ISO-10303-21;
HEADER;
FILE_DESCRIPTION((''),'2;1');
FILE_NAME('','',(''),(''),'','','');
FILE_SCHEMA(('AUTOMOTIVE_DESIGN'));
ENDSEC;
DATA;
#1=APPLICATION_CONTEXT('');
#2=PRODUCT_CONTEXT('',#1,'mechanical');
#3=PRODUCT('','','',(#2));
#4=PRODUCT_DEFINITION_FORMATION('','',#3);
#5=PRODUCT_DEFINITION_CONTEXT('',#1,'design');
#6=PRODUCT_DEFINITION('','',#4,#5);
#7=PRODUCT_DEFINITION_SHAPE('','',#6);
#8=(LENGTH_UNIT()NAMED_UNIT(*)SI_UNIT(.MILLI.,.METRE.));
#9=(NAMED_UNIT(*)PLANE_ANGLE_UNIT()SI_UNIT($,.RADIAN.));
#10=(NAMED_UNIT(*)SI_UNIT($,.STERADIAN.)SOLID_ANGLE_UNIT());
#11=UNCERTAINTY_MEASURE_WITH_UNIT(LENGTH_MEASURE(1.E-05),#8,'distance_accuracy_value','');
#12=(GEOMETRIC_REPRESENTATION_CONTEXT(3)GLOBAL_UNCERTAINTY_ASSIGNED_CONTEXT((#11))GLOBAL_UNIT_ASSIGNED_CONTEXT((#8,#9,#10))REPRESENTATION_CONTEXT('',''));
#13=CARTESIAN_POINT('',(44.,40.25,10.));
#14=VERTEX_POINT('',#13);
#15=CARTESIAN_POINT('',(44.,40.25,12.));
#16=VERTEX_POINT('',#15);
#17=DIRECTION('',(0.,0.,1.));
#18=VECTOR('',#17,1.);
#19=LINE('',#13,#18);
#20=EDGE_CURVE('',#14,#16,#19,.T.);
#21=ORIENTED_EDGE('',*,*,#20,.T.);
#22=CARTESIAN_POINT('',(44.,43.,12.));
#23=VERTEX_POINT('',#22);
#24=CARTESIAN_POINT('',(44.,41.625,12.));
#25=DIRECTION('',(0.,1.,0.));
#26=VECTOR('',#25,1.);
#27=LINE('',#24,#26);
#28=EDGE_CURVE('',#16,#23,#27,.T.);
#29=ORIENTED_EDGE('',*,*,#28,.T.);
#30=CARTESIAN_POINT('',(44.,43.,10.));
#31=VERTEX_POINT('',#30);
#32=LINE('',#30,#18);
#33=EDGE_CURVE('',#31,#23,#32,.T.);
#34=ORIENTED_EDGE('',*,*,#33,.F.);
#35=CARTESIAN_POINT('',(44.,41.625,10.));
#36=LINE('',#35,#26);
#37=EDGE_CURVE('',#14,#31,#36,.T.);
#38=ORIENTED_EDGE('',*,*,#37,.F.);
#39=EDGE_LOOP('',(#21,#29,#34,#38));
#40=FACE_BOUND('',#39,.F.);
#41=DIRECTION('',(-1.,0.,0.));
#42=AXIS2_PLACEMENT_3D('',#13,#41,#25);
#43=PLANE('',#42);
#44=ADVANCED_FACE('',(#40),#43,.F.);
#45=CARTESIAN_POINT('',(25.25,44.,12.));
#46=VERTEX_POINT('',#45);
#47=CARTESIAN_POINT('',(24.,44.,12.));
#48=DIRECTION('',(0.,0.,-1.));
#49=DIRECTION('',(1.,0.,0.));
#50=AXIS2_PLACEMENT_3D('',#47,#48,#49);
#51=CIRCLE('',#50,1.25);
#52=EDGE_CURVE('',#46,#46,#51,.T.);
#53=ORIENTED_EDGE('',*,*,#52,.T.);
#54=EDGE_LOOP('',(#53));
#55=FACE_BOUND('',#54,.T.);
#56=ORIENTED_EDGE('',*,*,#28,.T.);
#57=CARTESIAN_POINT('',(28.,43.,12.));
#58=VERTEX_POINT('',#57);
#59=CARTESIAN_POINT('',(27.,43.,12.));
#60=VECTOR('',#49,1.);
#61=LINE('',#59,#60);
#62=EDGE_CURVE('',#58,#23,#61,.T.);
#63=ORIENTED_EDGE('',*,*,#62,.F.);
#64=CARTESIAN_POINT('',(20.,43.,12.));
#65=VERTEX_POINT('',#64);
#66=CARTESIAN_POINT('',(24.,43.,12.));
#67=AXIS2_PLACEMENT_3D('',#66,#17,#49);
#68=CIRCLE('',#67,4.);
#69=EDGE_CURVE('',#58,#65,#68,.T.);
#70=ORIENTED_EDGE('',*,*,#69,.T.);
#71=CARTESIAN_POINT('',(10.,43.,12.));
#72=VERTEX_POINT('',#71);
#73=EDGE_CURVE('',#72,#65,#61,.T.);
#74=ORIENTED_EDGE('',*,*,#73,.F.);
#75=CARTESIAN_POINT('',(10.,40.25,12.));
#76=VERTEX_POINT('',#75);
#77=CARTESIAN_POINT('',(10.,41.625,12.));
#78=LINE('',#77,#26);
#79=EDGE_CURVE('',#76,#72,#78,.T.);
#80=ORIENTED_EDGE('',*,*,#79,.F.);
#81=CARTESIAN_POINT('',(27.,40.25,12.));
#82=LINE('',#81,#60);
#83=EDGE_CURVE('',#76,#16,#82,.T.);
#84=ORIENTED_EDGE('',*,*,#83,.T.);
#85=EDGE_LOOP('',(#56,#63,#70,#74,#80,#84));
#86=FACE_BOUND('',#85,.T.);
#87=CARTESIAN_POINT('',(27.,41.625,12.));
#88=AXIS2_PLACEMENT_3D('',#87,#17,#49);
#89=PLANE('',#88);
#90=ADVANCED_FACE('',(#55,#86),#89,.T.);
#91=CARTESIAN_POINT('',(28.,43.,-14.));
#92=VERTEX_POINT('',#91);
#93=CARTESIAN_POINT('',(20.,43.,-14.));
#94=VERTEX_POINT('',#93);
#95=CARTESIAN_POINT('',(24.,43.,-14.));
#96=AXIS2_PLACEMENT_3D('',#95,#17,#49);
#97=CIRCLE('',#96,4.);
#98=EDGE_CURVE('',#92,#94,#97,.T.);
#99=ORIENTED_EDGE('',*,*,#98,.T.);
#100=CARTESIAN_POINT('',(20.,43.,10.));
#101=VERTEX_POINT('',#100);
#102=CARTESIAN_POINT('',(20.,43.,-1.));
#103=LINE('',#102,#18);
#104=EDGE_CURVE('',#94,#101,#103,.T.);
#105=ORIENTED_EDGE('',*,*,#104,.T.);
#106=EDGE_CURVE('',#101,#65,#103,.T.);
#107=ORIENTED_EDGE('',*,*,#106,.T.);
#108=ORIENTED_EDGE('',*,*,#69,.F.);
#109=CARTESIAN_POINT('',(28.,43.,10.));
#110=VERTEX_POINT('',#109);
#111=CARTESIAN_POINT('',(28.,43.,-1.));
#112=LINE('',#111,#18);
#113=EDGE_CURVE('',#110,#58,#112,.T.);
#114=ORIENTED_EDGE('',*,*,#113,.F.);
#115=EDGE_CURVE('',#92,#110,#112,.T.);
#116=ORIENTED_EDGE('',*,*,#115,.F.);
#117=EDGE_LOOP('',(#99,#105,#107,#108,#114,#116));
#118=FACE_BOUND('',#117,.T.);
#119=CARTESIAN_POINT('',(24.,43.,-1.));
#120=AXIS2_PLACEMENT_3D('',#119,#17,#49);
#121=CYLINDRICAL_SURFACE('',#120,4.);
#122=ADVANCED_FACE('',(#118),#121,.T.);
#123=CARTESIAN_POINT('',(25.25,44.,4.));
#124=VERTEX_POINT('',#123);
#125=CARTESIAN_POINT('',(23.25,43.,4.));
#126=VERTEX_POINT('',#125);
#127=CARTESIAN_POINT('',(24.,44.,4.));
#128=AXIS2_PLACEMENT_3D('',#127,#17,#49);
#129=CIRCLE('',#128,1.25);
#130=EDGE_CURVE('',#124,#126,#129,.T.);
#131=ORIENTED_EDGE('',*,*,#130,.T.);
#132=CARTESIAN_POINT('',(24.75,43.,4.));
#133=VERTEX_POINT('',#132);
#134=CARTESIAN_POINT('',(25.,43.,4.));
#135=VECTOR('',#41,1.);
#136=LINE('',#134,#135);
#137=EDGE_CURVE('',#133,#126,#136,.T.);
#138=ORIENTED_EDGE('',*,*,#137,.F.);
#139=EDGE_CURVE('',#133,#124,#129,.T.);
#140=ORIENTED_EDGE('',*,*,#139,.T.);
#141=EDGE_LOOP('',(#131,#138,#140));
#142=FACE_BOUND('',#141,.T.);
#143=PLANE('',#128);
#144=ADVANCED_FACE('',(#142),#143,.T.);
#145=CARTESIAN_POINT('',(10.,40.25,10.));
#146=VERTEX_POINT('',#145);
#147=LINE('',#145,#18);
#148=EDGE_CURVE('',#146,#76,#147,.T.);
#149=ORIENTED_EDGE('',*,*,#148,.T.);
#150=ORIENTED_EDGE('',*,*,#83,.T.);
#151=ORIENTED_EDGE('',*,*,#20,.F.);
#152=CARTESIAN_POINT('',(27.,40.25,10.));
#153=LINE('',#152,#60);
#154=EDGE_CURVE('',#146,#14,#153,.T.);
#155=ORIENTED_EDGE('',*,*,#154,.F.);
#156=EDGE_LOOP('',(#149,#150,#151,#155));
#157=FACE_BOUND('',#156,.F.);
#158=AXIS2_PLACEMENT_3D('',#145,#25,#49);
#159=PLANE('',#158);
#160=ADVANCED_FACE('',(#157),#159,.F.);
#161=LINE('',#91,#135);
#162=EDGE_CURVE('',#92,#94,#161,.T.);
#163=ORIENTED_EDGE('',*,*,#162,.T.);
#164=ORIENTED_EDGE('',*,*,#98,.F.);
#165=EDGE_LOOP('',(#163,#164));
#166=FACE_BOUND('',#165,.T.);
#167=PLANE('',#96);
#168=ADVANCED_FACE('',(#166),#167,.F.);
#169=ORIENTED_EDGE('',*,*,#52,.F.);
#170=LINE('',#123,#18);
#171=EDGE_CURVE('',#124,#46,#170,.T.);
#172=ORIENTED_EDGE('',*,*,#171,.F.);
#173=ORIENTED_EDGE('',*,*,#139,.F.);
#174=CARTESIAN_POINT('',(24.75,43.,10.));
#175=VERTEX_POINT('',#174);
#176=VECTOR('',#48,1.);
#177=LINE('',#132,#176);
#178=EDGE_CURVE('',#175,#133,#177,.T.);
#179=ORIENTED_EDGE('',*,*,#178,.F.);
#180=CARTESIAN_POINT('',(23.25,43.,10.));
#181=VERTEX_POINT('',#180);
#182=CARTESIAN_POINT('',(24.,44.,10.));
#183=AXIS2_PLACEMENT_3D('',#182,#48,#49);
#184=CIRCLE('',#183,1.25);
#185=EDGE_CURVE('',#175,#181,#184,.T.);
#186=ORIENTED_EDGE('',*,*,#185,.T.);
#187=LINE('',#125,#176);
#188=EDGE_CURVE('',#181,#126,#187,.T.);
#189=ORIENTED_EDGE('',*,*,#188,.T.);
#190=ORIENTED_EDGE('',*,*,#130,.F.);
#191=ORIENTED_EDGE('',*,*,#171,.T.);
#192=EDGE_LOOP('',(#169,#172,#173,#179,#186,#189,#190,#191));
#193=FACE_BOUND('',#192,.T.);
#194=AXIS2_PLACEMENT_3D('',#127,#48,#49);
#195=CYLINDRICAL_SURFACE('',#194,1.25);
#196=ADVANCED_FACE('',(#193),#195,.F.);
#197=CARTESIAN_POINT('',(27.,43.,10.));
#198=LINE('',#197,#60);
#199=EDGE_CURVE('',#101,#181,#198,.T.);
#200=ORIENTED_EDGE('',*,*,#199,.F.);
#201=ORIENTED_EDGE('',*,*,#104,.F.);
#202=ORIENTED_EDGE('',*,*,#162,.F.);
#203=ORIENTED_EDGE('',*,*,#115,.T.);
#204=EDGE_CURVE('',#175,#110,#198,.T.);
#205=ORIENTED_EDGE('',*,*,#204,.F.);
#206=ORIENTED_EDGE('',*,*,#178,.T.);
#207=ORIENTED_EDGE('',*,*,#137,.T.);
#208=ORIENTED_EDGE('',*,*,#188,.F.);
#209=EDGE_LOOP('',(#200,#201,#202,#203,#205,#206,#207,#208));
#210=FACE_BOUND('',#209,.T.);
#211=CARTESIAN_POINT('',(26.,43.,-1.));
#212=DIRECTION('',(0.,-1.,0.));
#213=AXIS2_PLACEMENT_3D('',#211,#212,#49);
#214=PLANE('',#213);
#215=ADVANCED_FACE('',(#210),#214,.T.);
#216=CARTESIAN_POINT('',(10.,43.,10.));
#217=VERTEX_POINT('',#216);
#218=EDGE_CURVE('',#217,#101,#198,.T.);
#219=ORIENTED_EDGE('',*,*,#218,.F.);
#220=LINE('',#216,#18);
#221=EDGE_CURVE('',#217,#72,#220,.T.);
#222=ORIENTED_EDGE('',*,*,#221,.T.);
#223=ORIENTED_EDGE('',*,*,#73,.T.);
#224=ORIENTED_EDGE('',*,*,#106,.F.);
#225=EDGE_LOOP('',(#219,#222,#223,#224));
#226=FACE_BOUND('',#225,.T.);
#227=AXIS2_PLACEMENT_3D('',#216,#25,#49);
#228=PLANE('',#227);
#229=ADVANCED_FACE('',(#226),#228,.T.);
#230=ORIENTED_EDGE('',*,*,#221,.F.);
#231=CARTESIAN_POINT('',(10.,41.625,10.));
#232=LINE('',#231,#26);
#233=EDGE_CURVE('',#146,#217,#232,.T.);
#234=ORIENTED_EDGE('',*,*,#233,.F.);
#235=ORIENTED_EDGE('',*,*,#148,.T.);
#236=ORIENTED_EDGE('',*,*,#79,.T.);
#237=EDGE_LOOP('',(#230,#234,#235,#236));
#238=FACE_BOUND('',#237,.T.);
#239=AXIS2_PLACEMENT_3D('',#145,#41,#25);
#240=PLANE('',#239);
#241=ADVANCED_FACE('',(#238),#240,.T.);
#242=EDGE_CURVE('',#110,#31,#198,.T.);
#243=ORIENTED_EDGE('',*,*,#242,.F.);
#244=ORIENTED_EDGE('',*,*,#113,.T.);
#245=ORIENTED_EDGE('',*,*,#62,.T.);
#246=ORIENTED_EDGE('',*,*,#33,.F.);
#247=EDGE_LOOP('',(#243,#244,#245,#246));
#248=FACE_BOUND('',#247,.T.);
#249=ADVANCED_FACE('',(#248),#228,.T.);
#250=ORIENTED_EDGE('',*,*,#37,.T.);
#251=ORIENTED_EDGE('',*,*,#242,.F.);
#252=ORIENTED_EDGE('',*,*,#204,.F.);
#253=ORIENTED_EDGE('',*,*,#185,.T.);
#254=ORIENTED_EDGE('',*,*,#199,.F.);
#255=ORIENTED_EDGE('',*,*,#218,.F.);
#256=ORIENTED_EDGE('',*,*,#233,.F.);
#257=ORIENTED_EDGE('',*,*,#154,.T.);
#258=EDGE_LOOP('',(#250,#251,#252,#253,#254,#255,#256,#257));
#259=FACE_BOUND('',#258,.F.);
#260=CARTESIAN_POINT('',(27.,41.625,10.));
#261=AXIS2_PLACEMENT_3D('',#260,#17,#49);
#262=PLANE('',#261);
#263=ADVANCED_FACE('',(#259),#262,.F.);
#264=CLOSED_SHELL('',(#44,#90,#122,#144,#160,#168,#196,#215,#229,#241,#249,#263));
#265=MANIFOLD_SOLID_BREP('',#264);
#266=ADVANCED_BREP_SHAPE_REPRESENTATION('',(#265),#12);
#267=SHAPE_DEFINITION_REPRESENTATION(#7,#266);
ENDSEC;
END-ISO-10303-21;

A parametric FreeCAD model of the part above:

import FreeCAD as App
import Part
import Sketcher

V = App.Vector
Q = App.Units.Quantity

doc = App.newDocument("Part")
body = doc.addObject("PartDesign::Body", "Body")

# Sketch on XY plane
sketch1 = body.newObject("Sketcher::SketchObject", "Sketch")
sketch1.AttachmentSupport = (doc.getObject("XY_Plane"), [""])
sketch1.MapMode = "FlatFace"
sketch1.AttachmentOffset = App.Placement(V(0, 0, 4), App.Rotation())
sketch1.addGeometry(Part.Circle(V(11, 29, 0), V(0, 0, 1), 1.2), False)
sketch1.addConstraint([
    Sketcher.Constraint("Diameter", 0, Q("2.5 mm")),
    Sketcher.Constraint("DistanceX", -1, 1, 0, 3, Q("11 mm")),
    Sketcher.Constraint("DistanceY", -1, 1, 0, 3, Q("29 mm")),
])
pad1 = body.newObject("PartDesign::Pad", "Pad")
pad1.Profile = sketch1
pad1.Length = 10
body2 = doc.addObject("PartDesign::Body", "Body001")

# Sketch on XY plane
sketch2 = body2.newObject("Sketcher::SketchObject", "Sketch001")
sketch2.AttachmentSupport = (doc.getObject("XY_Plane001"), [""])
sketch2.MapMode = "FlatFace"
sketch2.AttachmentOffset = App.Placement(V(0, 0, 10), App.Rotation())
sketch2.addGeometry([
    Part.LineSegment(V(-3, 28, 0), V(-3, 25.2, 0)),
    Part.LineSegment(V(-3, 25.2, 0), V(31, 25.2, 0)),
    Part.LineSegment(V(31, 25.2, 0), V(31, 28, 0)),
    Part.LineSegment(V(31, 28, 0), V(-3, 28, 0)),
], False)
sketch2.addConstraint([
    Sketcher.Constraint("Coincident", 0, 2, 1, 1),
    Sketcher.Constraint("Coincident", 1, 2, 2, 1),
    Sketcher.Constraint("Coincident", 2, 2, 3, 1),
    Sketcher.Constraint("Coincident", 3, 2, 0, 1),
    Sketcher.Constraint("Vertical", 0),
    Sketcher.Constraint("Horizontal", 1),
    Sketcher.Constraint("Vertical", 2),
    Sketcher.Constraint("Horizontal", 3),
    Sketcher.Constraint("DistanceX", 1, 1, 1, 2, Q("34 mm")),
    Sketcher.Constraint("DistanceX", 0, 2, -1, 1, Q("3 mm")),
    Sketcher.Constraint("DistanceY", -1, 1, 2, 2, Q("28 mm")),
    Sketcher.Constraint("DistanceY", 0, 2, 0, 1, Q("2.75 mm")),
])
pad2 = body2.newObject("PartDesign::Pad", "Pad001")
pad2.Profile = sketch2
pad2.Length = 2
body3 = doc.addObject("PartDesign::Body", "Body002")

# Sketch on XZ plane
sketch3 = body3.newObject("Sketcher::SketchObject", "Sketch002")
sketch3.AttachmentSupport = (doc.getObject("XZ_Plane002"), [""])
sketch3.MapMode = "FlatFace"
sketch3.AttachmentOffset = App.Placement(V(0, 0, -28), App.Rotation())
sketch3.addGeometry([
    Part.LineSegment(V(11, 12, 0), V(11, -14, 0)),
    Part.LineSegment(V(11, -14, 0), V(15, -14, 0)),
    Part.LineSegment(V(15, -14, 0), V(15, 12, 0)),
    Part.LineSegment(V(15, 12, 0), V(11, 12, 0)),
], False)
sketch3.addGeometry(Part.LineSegment(V(11, -14, 0), V(11, 12, 0)), True)  # axis
sketch3.addConstraint([
    Sketcher.Constraint("Coincident", 0, 2, 1, 1),
    Sketcher.Constraint("Coincident", 1, 2, 2, 1),
    Sketcher.Constraint("Coincident", 2, 2, 3, 1),
    Sketcher.Constraint("Coincident", 3, 2, 0, 1),
    Sketcher.Constraint("Vertical", 0),
    Sketcher.Constraint("Horizontal", 1),
    Sketcher.Constraint("Vertical", 2),
    Sketcher.Constraint("Horizontal", 3),
    Sketcher.Constraint("Vertical", 4),
    Sketcher.Constraint("Coincident", 4, 1, 0, 2),
    Sketcher.Constraint("Horizontal", 2, 2, 4, 2),
    Sketcher.Constraint("DistanceX", 1, 1, 1, 2, Q("4 mm")),
    Sketcher.Constraint("DistanceY", 0, 2, 0, 1, Q("26 mm")),
    Sketcher.Constraint("DistanceX", -1, 1, 0, 2, Q("11 mm")),
    Sketcher.Constraint("DistanceY", 0, 2, -1, 1, Q("14 mm")),
])
revolution = body3.newObject("PartDesign::Revolution", "Revolution")
revolution.Profile = sketch3
revolution.ReferenceAxis = (sketch3, ["Axis0"])
revolution.Angle = 180
doc.recompute()

boolean = body3.newObject("PartDesign::Boolean", "Boolean")
boolean.Type = "Fuse"
boolean.addObjects([body2])
doc.recompute()

boolean2 = body3.newObject("PartDesign::Boolean", "Boolean001")
boolean2.Type = "Cut"
boolean2.addObjects([body])
body4 = doc.addObject("PartDesign::Body", "Body003")
doc.recompute()

body3.Placement = App.Placement(V(13, 15, 0), App.Rotation(V(0, 0, 1), 0))
boolean3 = body4.newObject("PartDesign::Boolean", "Boolean002")
boolean3.Type = "Fuse"
boolean3.addObjects([body3])

doc.recompute()
